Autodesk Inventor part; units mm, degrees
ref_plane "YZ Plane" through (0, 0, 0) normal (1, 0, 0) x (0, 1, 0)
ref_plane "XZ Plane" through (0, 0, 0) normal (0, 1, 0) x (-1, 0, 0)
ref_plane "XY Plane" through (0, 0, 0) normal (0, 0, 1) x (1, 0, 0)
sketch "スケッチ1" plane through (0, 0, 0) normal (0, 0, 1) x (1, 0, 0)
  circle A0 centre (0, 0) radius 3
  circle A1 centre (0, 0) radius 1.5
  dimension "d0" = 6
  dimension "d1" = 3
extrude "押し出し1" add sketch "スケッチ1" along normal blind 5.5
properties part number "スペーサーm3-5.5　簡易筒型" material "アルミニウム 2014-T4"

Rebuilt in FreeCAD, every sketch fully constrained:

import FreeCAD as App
import Part
import Sketcher
from FreeCAD import Vector

doc = App.newDocument("Part")
body = doc.addObject("PartDesign::Body", "Body")

sketch1 = body.newObject("Sketcher::SketchObject", "Sketch")
sketch1.AttachmentSupport = (doc.getObject("XY_Plane"), [""])
sketch1.MapMode = "FlatFace"
sketch1.addGeometry(Part.Circle(Vector(0, 0, 0), Vector(0, 0, 1), 3), False)
sketch1.addGeometry(Part.Circle(Vector(0, 0, 0), Vector(0, 0, 1), 1.5), False)
sketch1.addConstraint(Sketcher.Constraint("Coincident", 0, 3, -1, 1))
sketch1.addConstraint(Sketcher.Constraint("Coincident", 1, 3, -1, 1))
sketch1.addConstraint(Sketcher.Constraint("Diameter", 0, 6.0))
sketch1.addConstraint(Sketcher.Constraint("Diameter", 1, 3.0))
pad1 = body.newObject("PartDesign::Pad", "Pad")
pad1.Profile = sketch1
pad1.Length = 5.5

doc.recompute()
